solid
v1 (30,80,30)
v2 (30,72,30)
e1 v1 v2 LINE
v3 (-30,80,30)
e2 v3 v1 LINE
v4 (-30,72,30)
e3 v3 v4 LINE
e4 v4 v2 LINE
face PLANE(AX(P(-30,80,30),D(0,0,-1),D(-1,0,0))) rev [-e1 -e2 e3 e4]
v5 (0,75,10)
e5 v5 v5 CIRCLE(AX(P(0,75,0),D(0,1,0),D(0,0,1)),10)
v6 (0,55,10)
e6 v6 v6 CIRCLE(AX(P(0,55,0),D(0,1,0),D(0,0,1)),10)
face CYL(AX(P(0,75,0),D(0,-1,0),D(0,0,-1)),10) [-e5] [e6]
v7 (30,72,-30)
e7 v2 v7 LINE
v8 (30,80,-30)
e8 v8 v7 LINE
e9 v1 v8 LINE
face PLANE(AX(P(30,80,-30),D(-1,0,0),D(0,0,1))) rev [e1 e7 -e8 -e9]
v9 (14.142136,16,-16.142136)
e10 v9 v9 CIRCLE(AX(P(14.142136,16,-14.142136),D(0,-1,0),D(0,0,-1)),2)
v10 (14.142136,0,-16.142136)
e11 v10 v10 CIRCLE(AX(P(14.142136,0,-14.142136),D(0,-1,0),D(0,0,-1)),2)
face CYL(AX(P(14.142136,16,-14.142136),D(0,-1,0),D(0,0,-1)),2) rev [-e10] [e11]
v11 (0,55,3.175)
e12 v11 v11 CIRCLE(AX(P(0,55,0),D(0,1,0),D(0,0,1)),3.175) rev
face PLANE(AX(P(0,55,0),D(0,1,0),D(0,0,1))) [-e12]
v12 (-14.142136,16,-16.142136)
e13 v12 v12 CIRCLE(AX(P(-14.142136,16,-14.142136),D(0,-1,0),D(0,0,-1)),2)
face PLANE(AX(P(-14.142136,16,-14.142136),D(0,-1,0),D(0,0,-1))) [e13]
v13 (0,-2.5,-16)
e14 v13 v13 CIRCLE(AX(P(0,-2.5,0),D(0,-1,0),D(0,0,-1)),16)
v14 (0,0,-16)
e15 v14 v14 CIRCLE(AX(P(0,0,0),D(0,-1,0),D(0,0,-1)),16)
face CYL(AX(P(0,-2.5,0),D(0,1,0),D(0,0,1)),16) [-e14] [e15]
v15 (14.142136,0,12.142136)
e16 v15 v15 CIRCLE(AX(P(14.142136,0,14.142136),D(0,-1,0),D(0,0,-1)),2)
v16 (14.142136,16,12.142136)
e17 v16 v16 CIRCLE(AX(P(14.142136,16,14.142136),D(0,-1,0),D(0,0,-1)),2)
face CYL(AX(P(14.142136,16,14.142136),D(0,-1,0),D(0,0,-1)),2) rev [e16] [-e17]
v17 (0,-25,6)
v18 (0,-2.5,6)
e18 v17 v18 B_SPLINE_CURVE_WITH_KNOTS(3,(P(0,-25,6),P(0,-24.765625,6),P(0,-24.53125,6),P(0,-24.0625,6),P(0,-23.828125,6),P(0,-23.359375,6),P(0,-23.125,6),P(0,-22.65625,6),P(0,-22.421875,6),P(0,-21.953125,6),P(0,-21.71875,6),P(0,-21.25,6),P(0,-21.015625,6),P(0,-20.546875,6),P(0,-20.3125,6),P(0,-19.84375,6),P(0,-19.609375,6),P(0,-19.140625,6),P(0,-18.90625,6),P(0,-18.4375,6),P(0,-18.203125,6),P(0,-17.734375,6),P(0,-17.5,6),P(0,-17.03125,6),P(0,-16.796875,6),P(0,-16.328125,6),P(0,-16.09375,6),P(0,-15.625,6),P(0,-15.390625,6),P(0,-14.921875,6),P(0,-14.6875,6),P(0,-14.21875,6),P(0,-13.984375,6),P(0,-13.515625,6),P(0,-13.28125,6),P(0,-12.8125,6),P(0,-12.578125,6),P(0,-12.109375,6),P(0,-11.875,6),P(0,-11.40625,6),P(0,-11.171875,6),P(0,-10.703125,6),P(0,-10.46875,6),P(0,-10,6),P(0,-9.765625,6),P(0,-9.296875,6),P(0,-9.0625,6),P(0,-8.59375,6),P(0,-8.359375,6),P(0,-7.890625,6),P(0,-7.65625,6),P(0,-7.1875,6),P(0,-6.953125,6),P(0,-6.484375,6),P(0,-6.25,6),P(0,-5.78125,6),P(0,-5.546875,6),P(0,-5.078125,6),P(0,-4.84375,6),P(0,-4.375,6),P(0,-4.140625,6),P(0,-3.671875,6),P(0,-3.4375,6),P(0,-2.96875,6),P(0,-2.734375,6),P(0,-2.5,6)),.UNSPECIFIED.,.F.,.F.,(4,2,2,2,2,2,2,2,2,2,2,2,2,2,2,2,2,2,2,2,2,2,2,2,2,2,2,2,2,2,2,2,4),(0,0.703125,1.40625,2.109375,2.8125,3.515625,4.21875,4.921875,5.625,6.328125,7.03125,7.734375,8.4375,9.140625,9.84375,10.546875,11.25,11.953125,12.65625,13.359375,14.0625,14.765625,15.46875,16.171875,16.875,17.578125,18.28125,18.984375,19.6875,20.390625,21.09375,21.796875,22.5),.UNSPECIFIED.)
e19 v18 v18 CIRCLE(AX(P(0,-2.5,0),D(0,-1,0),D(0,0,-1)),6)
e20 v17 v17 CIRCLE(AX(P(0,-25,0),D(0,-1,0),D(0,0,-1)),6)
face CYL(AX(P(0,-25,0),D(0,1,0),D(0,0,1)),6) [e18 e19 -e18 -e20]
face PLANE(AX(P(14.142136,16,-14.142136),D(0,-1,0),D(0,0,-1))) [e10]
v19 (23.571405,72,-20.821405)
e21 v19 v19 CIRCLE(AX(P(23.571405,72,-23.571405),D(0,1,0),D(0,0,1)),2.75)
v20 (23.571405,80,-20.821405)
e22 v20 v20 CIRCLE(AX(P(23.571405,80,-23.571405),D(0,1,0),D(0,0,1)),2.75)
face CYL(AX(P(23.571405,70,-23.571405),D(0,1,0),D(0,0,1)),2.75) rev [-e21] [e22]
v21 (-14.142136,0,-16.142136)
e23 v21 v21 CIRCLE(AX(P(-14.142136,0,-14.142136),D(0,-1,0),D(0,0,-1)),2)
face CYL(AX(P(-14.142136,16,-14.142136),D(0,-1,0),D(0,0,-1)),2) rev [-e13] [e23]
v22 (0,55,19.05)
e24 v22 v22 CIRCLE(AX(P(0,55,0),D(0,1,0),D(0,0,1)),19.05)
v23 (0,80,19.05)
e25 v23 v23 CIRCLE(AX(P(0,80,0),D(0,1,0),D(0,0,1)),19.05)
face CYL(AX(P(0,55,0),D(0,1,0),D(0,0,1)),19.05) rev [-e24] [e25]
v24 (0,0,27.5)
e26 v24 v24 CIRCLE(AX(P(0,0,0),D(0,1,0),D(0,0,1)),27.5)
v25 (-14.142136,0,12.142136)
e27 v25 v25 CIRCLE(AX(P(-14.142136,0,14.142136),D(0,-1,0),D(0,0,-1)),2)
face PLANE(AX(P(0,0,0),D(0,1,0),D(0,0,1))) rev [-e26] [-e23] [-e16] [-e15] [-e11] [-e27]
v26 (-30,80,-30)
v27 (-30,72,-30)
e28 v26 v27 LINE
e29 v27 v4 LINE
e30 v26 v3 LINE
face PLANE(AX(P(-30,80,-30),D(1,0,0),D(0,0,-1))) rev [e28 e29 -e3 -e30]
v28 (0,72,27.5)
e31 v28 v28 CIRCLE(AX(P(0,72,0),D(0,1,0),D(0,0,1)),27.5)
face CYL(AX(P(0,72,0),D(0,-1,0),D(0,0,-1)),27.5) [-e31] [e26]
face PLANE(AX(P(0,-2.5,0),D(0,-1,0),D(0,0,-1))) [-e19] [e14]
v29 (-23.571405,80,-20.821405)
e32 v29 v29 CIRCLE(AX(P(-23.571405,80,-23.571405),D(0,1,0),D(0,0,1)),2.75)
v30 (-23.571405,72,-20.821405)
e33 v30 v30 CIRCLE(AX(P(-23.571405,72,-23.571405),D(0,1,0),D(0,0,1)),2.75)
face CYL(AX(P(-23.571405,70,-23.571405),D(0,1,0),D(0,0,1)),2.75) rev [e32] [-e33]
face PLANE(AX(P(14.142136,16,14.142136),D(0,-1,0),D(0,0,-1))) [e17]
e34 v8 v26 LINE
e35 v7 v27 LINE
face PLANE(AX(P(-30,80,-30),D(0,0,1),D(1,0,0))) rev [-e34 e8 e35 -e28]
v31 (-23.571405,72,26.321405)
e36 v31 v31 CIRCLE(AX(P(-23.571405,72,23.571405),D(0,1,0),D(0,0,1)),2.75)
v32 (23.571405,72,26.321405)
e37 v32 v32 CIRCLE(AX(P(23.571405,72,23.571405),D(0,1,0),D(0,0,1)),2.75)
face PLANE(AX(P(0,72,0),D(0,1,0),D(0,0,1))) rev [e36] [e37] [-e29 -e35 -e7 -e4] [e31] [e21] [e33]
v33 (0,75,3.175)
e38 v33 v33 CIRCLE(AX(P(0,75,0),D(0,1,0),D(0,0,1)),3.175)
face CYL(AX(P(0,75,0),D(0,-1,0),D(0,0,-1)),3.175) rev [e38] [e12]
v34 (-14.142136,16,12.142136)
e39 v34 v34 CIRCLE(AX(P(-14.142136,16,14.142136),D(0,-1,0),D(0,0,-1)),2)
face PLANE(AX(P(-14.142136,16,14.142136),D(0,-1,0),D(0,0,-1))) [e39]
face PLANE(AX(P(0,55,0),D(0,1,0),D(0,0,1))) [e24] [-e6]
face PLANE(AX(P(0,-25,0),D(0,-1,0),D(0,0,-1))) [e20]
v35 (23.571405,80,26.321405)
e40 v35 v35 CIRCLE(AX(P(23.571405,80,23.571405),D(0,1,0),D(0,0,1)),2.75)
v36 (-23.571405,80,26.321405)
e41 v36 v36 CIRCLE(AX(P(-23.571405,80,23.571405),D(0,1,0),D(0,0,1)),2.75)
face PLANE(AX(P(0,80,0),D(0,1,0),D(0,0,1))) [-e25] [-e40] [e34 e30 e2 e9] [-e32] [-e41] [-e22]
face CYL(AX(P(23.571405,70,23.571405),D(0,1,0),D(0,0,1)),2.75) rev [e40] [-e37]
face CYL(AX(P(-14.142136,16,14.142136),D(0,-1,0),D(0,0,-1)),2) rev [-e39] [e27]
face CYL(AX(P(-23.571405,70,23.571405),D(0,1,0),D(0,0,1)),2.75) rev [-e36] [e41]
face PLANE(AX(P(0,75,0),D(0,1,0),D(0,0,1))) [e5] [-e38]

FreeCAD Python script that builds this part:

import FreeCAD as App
import Part
import Sketcher
from FreeCAD import Vector
Q = App.Units.Quantity


def add_polygon(sketch, points):
    """Adds a closed chain of lines whose ends are joined by coincident constraints."""
    first, n = sketch.GeometryCount, len(points)
    for a, b in zip(points, points[1:] + points[:1]):
        sketch.addGeometry(Part.LineSegment(App.Vector(*a, 0), App.Vector(*b, 0)), False)
    for i in range(n):
        sketch.addConstraint(Sketcher.Constraint("Coincident", first + i, 2, first + (i + 1) % n, 1))

doc = App.newDocument("Part")
params = doc.addObject("Spreadsheet::Sheet", "Params")
for row, (alias, value) in enumerate([
    ("sketch1_diameter", "55 mm"),
    ("pad1_length", "72 mm"),
    ("sketch2_diameter", "32 mm"),
    ("pad2_length", "2.5 mm"),
    ("sketch3_width", "60 mm"),
    ("pad3_length", "8 mm"),
    ("sketch4_diameter", "12 mm"),
    ("pad4_length", "22.5 mm"),
    ("sketch5_diameter", "4 mm"),
    ("pocket1_length", "16 mm"),
    ("sketch6_diameter", "38.1 mm"),
    ("pocket2_length", "25 mm"),
    ("sketch7_diameter", "20 mm"),
    ("sketch7_diameter2", "6.35 mm"),
    ("pad5_length", "20 mm"),
    ("sketch8_diameter", "5.5 mm"),
    ("pocket3_length", "10 mm"),
], start=1):
    params.set(f"A{row}", alias)
    params.set(f"B{row}", "=" + value)
    params.setAlias(f"B{row}", alias)

body = doc.addObject("PartDesign::Body", "Body")

sketch1 = body.newObject("Sketcher::SketchObject", "Sketch")
sketch1.AttachmentSupport = (doc.getObject("XZ_Plane"), [""])
sketch1.MapMode = "FlatFace"
sketch1.addGeometry(Part.Circle(Vector(0, 0, 0), Vector(0, 0, 1), 27.5), False)
sketch1.addConstraint(Sketcher.Constraint("Coincident", 0, 3, -1, 1))
sketch1.addConstraint(Sketcher.Constraint("Diameter", 0, Q("55 mm")))
sketch1.setExpression("Constraints[1]", "Params.sketch1_diameter")
pad1 = body.newObject("PartDesign::Pad", "Pad")
pad1.Profile = sketch1
pad1.setExpression("Length", "Params.pad1_length")
pad1.Reversed = True

sketch2 = body.newObject("Sketcher::SketchObject", "Sketch001")
sketch2.AttachmentSupport = (doc.getObject("XZ_Plane"), [""])
sketch2.MapMode = "FlatFace"
sketch2.addGeometry(Part.Circle(Vector(0, 0, 0), Vector(0, 0, 1), 16), False)
sketch2.addConstraint(Sketcher.Constraint("Coincident", 0, 3, -1, 1))
sketch2.addConstraint(Sketcher.Constraint("Diameter", 0, Q("32 mm")))
sketch2.setExpression("Constraints[1]", "Params.sketch2_diameter")
pad2 = body.newObject("PartDesign::Pad", "Pad001")
pad2.Profile = sketch2
pad2.setExpression("Length", "Params.pad2_length")

sketch3 = body.newObject("Sketcher::SketchObject", "Sketch002")
sketch3.AttachmentSupport = (doc.getObject("XZ_Plane"), [""])
sketch3.MapMode = "FlatFace"
sketch3.AttachmentOffset = App.Placement(Vector(0, 0, -72), App.Rotation())
add_polygon(sketch3, [(-30, -30), (-30, 30), (30, 30), (30, -30)])
sketch3.addConstraint(Sketcher.Constraint("Vertical", 0))
sketch3.addConstraint(Sketcher.Constraint("Horizontal", 1))
sketch3.addConstraint(Sketcher.Constraint("Vertical", 2))
sketch3.addConstraint(Sketcher.Constraint("Horizontal", 3))
sketch3.addConstraint(Sketcher.Constraint("Symmetric", 0, 2, 2, 2, -1, 1))
sketch3.addConstraint(Sketcher.Constraint("Equal", 3, 0))
sketch3.addConstraint(Sketcher.Constraint("DistanceX", 1, 1, 1, 2, Q("60 mm")))
sketch3.setExpression("Constraints[10]", "Params.sketch3_width")
pad3 = body.newObject("PartDesign::Pad", "Pad002")
pad3.Profile = sketch3
pad3.setExpression("Length", "Params.pad3_length")
pad3.Reversed = True

sketch4 = body.newObject("Sketcher::SketchObject", "Sketch003")
sketch4.AttachmentSupport = (doc.getObject("XZ_Plane"), [""])
sketch4.MapMode = "FlatFace"
sketch4.AttachmentOffset = App.Placement(Vector(0, 0, 2.5), App.Rotation())
sketch4.addGeometry(Part.Circle(Vector(0, 0, 0), Vector(0, 0, 1), 6), False)
sketch4.addConstraint(Sketcher.Constraint("Coincident", 0, 3, -1, 1))
sketch4.addConstraint(Sketcher.Constraint("Diameter", 0, Q("12 mm")))
sketch4.setExpression("Constraints[1]", "Params.sketch4_diameter")
pad4 = body.newObject("PartDesign::Pad", "Pad003")
pad4.Profile = sketch4
pad4.setExpression("Length", "Params.pad4_length")

sketch5 = body.newObject("Sketcher::SketchObject", "Sketch004")
sketch5.AttachmentSupport = (doc.getObject("XZ_Plane"), [""])
sketch5.MapMode = "FlatFace"
sketch5.addGeometry(Part.Circle(Vector(14.142136, 14.142136, 0), Vector(0, 0, 1), 2), False)
sketch5.addGeometry(Part.Circle(Vector(14.142136, -14.142136, 0), Vector(0, 0, 1), 2), False)
sketch5.addGeometry(Part.Circle(Vector(-14.142136, -14.142136, 0), Vector(0, 0, 1), 2), False)
sketch5.addGeometry(Part.Circle(Vector(-14.142136, 14.142136, 0), Vector(0, 0, 1), 2), False)
sketch5.addConstraint(Sketcher.Constraint("Equal", 0, 1))
sketch5.addConstraint(Sketcher.Constraint("Equal", 1, 2))
sketch5.addConstraint(Sketcher.Constraint("Equal", 2, 3))
sketch5.addConstraint(Sketcher.Constraint("Symmetric", 0, 3, 2, 3, -1, 1))
sketch5.addConstraint(Sketcher.Constraint("Symmetric", 1, 3, 3, 3, -1, 1))
sketch5.addConstraint(Sketcher.Constraint("Symmetric", 1, 3, 2, 3, -2))
sketch5.addConstraint(Sketcher.Constraint("Diameter", 0, Q("4 mm")))
sketch5.addConstraint(Sketcher.Constraint("DistanceY", 1, 3, 0, 3, Q("28.284271 mm")))
sketch5.addConstraint(Sketcher.Constraint("DistanceX", 2, 3, 1, 3, Q("28.284271 mm")))
sketch5.setExpression("Constraints[6]", "Params.sketch5_diameter")
pocket1 = body.newObject("PartDesign::Pocket", "Pocket")
pocket1.Profile = sketch5
pocket1.setExpression("Length", "Params.pocket1_length")

sketch6 = body.newObject("Sketcher::SketchObject", "Sketch005")
sketch6.AttachmentSupport = (doc.getObject("XZ_Plane"), [""])
sketch6.MapMode = "FlatFace"
sketch6.AttachmentOffset = App.Placement(Vector(0, 0, -80), App.Rotation())
sketch6.addGeometry(Part.Circle(Vector(0, 0, 0), Vector(0, 0, 1), 19.05), False)
sketch6.addConstraint(Sketcher.Constraint("Coincident", 0, 3, -1, 1))
sketch6.addConstraint(Sketcher.Constraint("Diameter", 0, Q("38.1 mm")))
sketch6.setExpression("Constraints[1]", "Params.sketch6_diameter")
pocket2 = body.newObject("PartDesign::Pocket", "Pocket001")
pocket2.Profile = sketch6
pocket2.setExpression("Length", "Params.pocket2_length")
pocket2.Reversed = True

sketch7 = body.newObject("Sketcher::SketchObject", "Sketch006")
sketch7.AttachmentSupport = (doc.getObject("XZ_Plane"), [""])
sketch7.MapMode = "FlatFace"
sketch7.AttachmentOffset = App.Placement(Vector(0, 0, -55), App.Rotation())
sketch7.addGeometry(Part.Circle(Vector(0, 0, 0), Vector(0, 0, 1), 10), False)
sketch7.addGeometry(Part.Circle(Vector(0, 0, 0), Vector(0, 0, 1), 3.175), False)
sketch7.addConstraint(Sketcher.Constraint("Coincident", 0, 3, -1, 1))
sketch7.addConstraint(Sketcher.Constraint("Coincident", 1, 3, -1, 1))
sketch7.addConstraint(Sketcher.Constraint("Diameter", 0, Q("20 mm")))
sketch7.addConstraint(Sketcher.Constraint("Diameter", 1, Q("6.35 mm")))
sketch7.setExpression("Constraints[2]", "Params.sketch7_diameter")
sketch7.setExpression("Constraints[3]", "Params.sketch7_diameter2")
pad5 = body.newObject("PartDesign::Pad", "Pad004")
pad5.Profile = sketch7
pad5.setExpression("Length", "Params.pad5_length")
pad5.Reversed = True

sketch8 = body.newObject("Sketcher::SketchObject", "Sketch007")
sketch8.AttachmentSupport = (doc.getObject("XZ_Plane"), [""])
sketch8.MapMode = "FlatFace"
sketch8.AttachmentOffset = App.Placement(Vector(0, 0, -80), App.Rotation())
sketch8.addGeometry(Part.Circle(Vector(-23.571405, -23.571405, 0), Vector(0, 0, 1), 2.75), False)
sketch8.addGeometry(Part.Circle(Vector(23.571405, -23.571405, 0), Vector(0, 0, 1), 2.75), False)
sketch8.addGeometry(Part.Circle(Vector(23.571405, 23.571405, 0), Vector(0, 0, 1), 2.75), False)
sketch8.addGeometry(Part.Circle(Vector(-23.571405, 23.571405, 0), Vector(0, 0, 1), 2.75), False)
sketch8.addConstraint(Sketcher.Constraint("Equal", 0, 1))
sketch8.addConstraint(Sketcher.Constraint("Equal", 1, 2))
sketch8.addConstraint(Sketcher.Constraint("Equal", 2, 3))
sketch8.addConstraint(Sketcher.Constraint("Symmetric", 0, 3, 2, 3, -1, 1))
sketch8.addConstraint(Sketcher.Constraint("Symmetric", 1, 3, 3, 3, -1, 1))
sketch8.addConstraint(Sketcher.Constraint("Symmetric", 0, 3, 1, 3, -2))
sketch8.addConstraint(Sketcher.Constraint("Diameter", 0, Q("5.5 mm")))
sketch8.addConstraint(Sketcher.Constraint("DistanceX", 0, 3, 1, 3, Q("47.142809 mm")))
sketch8.addConstraint(Sketcher.Constraint("DistanceY", 1, 3, 2, 3, Q("47.142809 mm")))
sketch8.setExpression("Constraints[6]", "Params.sketch8_diameter")
pocket3 = body.newObject("PartDesign::Pocket", "Pocket002")
pocket3.Profile = sketch8
pocket3.setExpression("Length", "Params.pocket3_length")
pocket3.Reversed = True

doc.recompute()
